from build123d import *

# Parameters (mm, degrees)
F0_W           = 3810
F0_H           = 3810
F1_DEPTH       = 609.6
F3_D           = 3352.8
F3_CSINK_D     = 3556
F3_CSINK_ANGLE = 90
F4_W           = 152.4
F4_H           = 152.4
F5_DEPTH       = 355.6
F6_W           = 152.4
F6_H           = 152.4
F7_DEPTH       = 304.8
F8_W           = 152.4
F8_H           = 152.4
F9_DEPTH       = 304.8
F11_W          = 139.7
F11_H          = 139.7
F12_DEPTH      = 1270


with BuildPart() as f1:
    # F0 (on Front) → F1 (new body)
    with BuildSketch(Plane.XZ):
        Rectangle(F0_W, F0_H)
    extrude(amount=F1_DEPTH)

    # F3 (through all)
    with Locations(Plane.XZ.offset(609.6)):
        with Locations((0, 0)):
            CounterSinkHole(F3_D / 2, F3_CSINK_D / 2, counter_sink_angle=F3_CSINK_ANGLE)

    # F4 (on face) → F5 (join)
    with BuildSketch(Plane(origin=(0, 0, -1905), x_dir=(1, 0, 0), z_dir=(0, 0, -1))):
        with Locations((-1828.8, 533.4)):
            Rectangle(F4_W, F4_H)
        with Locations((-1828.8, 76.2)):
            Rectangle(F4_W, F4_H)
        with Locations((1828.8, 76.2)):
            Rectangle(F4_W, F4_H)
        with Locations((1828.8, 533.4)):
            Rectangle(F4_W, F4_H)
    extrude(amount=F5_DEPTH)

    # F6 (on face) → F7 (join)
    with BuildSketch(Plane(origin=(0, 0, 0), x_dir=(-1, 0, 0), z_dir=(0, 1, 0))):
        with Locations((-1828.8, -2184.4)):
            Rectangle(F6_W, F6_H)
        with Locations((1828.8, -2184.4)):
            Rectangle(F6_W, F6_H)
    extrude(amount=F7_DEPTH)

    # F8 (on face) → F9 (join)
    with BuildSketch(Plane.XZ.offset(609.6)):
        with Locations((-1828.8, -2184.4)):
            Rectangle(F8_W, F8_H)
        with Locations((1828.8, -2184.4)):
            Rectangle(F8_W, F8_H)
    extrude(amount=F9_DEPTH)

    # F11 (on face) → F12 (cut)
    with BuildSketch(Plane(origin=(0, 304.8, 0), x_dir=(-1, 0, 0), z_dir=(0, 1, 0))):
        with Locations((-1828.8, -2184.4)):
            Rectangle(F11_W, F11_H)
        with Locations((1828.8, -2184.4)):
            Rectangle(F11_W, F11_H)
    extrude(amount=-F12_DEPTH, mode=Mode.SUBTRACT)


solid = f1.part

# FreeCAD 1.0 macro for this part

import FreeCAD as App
import Part
import Sketcher

V = App.Vector
Q = App.Units.Quantity


def add_polygon(sketch, points):
    """Adds a closed chain of lines whose ends are joined by coincident constraints."""
    first, n = sketch.GeometryCount, len(points)
    for a, b in zip(points, points[1:] + points[:1]):
        sketch.addGeometry(Part.LineSegment(App.Vector(*a, 0), App.Vector(*b, 0)), False)
    for i in range(n):
        sketch.addConstraint(Sketcher.Constraint("Coincident", first + i, 2, first + (i + 1) % n, 1))

doc = App.newDocument("Part")
params = doc.addObject("Spreadsheet::Sheet", "Params")
for row, (alias, value) in enumerate([
    ("sketch1_width", "150 in"),
    ("pad1_length", "24 in"),
    ("sketch2_diameter", "132 in"),
    ("hole_diameter", "132 in"),
    ("hole_csink_diameter", "140 in"),
    ("sketch3_width", "6 in"),
    ("pad2_length", "14 in"),
    ("sketch4_width", "6 in"),
    ("pad3_length", "12 in"),
    ("sketch5_width", "6 in"),
    ("pad4_length", "12 in"),
    ("sketch6_width", "5.5 in"),
    ("pocket1_length", "50 in"),
], start=1):
    params.set(f"A{row}", alias)
    params.set(f"B{row}", "=" + value)
    params.setAlias(f"B{row}", alias)

body = doc.addObject("PartDesign::Body", "Body")

sketch1 = body.newObject("Sketcher::SketchObject", "Sketch")
sketch1.AttachmentSupport = (doc.getObject("XZ_Plane"), [""])
sketch1.MapMode = "FlatFace"
add_polygon(sketch1, [(-1905, 1905), (-1905, -1905), (1905, -1905), (1905, 1905)])
sketch1.addConstraint([
    Sketcher.Constraint("Vertical", 0),
    Sketcher.Constraint("Horizontal", 1),
    Sketcher.Constraint("Vertical", 2),
    Sketcher.Constraint("Horizontal", 3),
    Sketcher.Constraint("Symmetric", 0, 2, 2, 2, -1, 1),
    Sketcher.Constraint("Equal", 3, 0),
    Sketcher.Constraint("DistanceX", 1, 1, 1, 2, Q("150 in")),
])
sketch1.setExpression("Constraints[10]", "Params.sketch1_width")
pad1 = body.newObject("PartDesign::Pad", "Pad")
pad1.Profile = sketch1
pad1.setExpression("Length", "Params.pad1_length")

sketch2 = body.newObject("Sketcher::SketchObject", "Sketch001")
sketch2.AttachmentSupport = (doc.getObject("XZ_Plane"), [""])
sketch2.MapMode = "FlatFace"
sketch2.AttachmentOffset = App.Placement(V(0, 0, 24 * 25.4), App.Rotation())
sketch2.addGeometry(Part.Circle(V(0, 0, 0), V(0, 0, 1), 1676), False)
sketch2.addConstraint([
    Sketcher.Constraint("Coincident", 0, 3, -1, 1),
    Sketcher.Constraint("Diameter", 0, Q("132 in")),
])
sketch2.setExpression("Constraints[1]", "Params.sketch2_diameter")
doc.recompute()
hole = body.newObject("PartDesign::Hole", "Hole")
hole.Profile = sketch2
hole.ThreadType = "None"
hole.setExpression("Diameter", "Params.hole_diameter")
hole.DepthType = "ThroughAll"
hole.HoleCutType = "Countersink"
hole.setExpression("HoleCutDiameter", "Params.hole_csink_diameter")
hole.HoleCutCountersinkAngle = 90

sketch3 = body.newObject("Sketcher::SketchObject", "Sketch002")
sketch3.AttachmentSupport = (doc.getObject("XY_Plane"), [""])
sketch3.MapMode = "FlatFace"
sketch3.AttachmentOffset = App.Placement(V(0, 0, -75 * 25.4), App.Rotation())
add_polygon(sketch3, [(-1905, -610), (-1905, -457), (-1753, -457), (-1753, -610)])
add_polygon(sketch3, [(-1905, -152), (-1905, 0), (-1753, 0), (-1753, -152)])
add_polygon(sketch3, [(1753, -152), (1753, 0), (1905, 0), (1905, -152)])
add_polygon(sketch3, [(1753, -610), (1753, -457), (1905, -457), (1905, -610)])
sketch3.addConstraint([
    Sketcher.Constraint("Vertical", 0),
    Sketcher.Constraint("Horizontal", 1),
    Sketcher.Constraint("Vertical", 2),
    Sketcher.Constraint("Horizontal", 3),
    Sketcher.Constraint("Vertical", 4),
    Sketcher.Constraint("Horizontal", 5),
    Sketcher.Constraint("Vertical", 6),
    Sketcher.Constraint("Horizontal", 7),
    Sketcher.Constraint("Vertical", 8),
    Sketcher.Constraint("Horizontal", 9),
    Sketcher.Constraint("Vertical", 10),
    Sketcher.Constraint("Horizontal", 11),
    Sketcher.Constraint("Vertical", 12),
    Sketcher.Constraint("Horizontal", 13),
    Sketcher.Constraint("Vertical", 14),
    Sketcher.Constraint("Horizontal", 15),
    Sketcher.Constraint("Symmetric", 5, 2, 8, 2, -1, 1),
    Sketcher.Constraint("Symmetric", 4, 2, 9, 2, -2),
    Sketcher.Constraint("Symmetric", 1, 2, 12, 2, -2),
    Sketcher.Constraint("Symmetric", 3, 2, 14, 2, -2),
    Sketcher.Constraint("Horizontal", 7, 2, 10, 2),
    Sketcher.Constraint("Vertical", 3, 2, 4, 2),
    Sketcher.Constraint("Vertical", 2, 2, 5, 2),
    Sketcher.Constraint("Equal", 15, 0),
    Sketcher.Constraint("Equal", 2, 4),
    Sketcher.Constraint("DistanceX", 1, 1, 1, 2, Q("6 in")),
    Sketcher.Constraint("DistanceX", 0, 2, -1, 1, Q("75 in")),
    Sketcher.Constraint("DistanceY", 0, 2, -1, 1, Q("18 in")),
])
sketch3.setExpression("Constraints[41]", "Params.sketch3_width")
pad2 = body.newObject("PartDesign::Pad", "Pad001")
pad2.Profile = sketch3
pad2.setExpression("Length", "Params.pad2_length")
pad2.Reversed = True

sketch4 = body.newObject("Sketcher::SketchObject", "Sketch003")
sketch4.AttachmentSupport = (doc.getObject("XZ_Plane"), [""])
sketch4.MapMode = "FlatFace"
add_polygon(sketch4, [(1905, -2108), (1905, -2261), (1753, -2261), (1753, -2108)])
add_polygon(sketch4, [(-1753, -2108), (-1753, -2261), (-1905, -2261), (-1905, -2108)])
sketch4.addConstraint([
    Sketcher.Constraint("Vertical", 0),
    Sketcher.Constraint("Horizontal", 1),
    Sketcher.Constraint("Vertical", 2),
    Sketcher.Constraint("Horizontal", 3),
    Sketcher.Constraint("Vertical", 4),
    Sketcher.Constraint("Horizontal", 5),
    Sketcher.Constraint("Vertical", 6),
    Sketcher.Constraint("Horizontal", 7),
    Sketcher.Constraint("Symmetric", 1, 2, 4, 2, -2),
    Sketcher.Constraint("Symmetric", 3, 2, 6, 2, -2),
    Sketcher.Constraint("Equal", 7, 0),
    Sketcher.Constraint("DistanceX", 1, 2, 1, 1, Q("6 in")),
    Sketcher.Constraint("DistanceX", -1, 1, 0, 2, Q("75 in")),
    Sketcher.Constraint("DistanceY", 0, 2, -1, 1, Q("89 in")),
])
sketch4.setExpression("Constraints[19]", "Params.sketch4_width")
pad3 = body.newObject("PartDesign::Pad", "Pad002")
pad3.Profile = sketch4
pad3.setExpression("Length", "Params.pad3_length")
pad3.Reversed = True

sketch5 = body.newObject("Sketcher::SketchObject", "Sketch004")
sketch5.AttachmentSupport = (doc.getObject("XZ_Plane"), [""])
sketch5.MapMode = "FlatFace"
sketch5.AttachmentOffset = App.Placement(V(0, 0, 24 * 25.4), App.Rotation())
add_polygon(sketch5, [(-1905, -2108), (-1905, -2261), (-1753, -2261), (-1753, -2108)])
add_polygon(sketch5, [(1753, -2108), (1753, -2261), (1905, -2261), (1905, -2108)])
sketch5.addConstraint([
    Sketcher.Constraint("Vertical", 0),
    Sketcher.Constraint("Horizontal", 1),
    Sketcher.Constraint("Vertical", 2),
    Sketcher.Constraint("Horizontal", 3),
    Sketcher.Constraint("Vertical", 4),
    Sketcher.Constraint("Horizontal", 5),
    Sketcher.Constraint("Vertical", 6),
    Sketcher.Constraint("Horizontal", 7),
    Sketcher.Constraint("Symmetric", 1, 2, 4, 2, -2),
    Sketcher.Constraint("Symmetric", 3, 2, 6, 2, -2),
    Sketcher.Constraint("Equal", 7, 0),
    Sketcher.Constraint("DistanceX", 1, 1, 1, 2, Q("6 in")),
    Sketcher.Constraint("DistanceX", 0, 2, -1, 1, Q("75 in")),
    Sketcher.Constraint("DistanceY", 0, 2, -1, 1, Q("89 in")),
])
sketch5.setExpression("Constraints[19]", "Params.sketch5_width")
pad4 = body.newObject("PartDesign::Pad", "Pad003")
pad4.Profile = sketch5
pad4.setExpression("Length", "Params.pad4_length")

sketch6 = body.newObject("Sketcher::SketchObject", "Sketch005")
sketch6.AttachmentSupport = (doc.getObject("XZ_Plane"), [""])
sketch6.MapMode = "FlatFace"
sketch6.AttachmentOffset = App.Placement(V(0, 0, -12 * 25.4), App.Rotation())
add_polygon(sketch6, [(1899, -2115), (1899, -2254), (1759, -2254), (1759, -2115)])
add_polygon(sketch6, [(-1759, -2115), (-1759, -2254), (-1899, -2254), (-1899, -2115)])
sketch6.addConstraint([
    Sketcher.Constraint("Vertical", 0),
    Sketcher.Constraint("Horizontal", 1),
    Sketcher.Constraint("Vertical", 2),
    Sketcher.Constraint("Horizontal", 3),
    Sketcher.Constraint("Vertical", 4),
    Sketcher.Constraint("Horizontal", 5),
    Sketcher.Constraint("Vertical", 6),
    Sketcher.Constraint("Horizontal", 7),
    Sketcher.Constraint("Symmetric", 1, 2, 4, 2, -2),
    Sketcher.Constraint("Symmetric", 3, 2, 6, 2, -2),
    Sketcher.Constraint("Equal", 7, 0),
    Sketcher.Constraint("DistanceX", 1, 2, 1, 1, Q("5.5 in")),
    Sketcher.Constraint("DistanceX", 4, 2, 0, 2, Q("144 in")),
    Sketcher.Constraint("DistanceY", 0, 2, -1, 1, Q("88.75 in")),
])
sketch6.setExpression("Constraints[19]", "Params.sketch6_width")
pocket1 = body.newObject("PartDesign::Pocket", "Pocket")
pocket1.Profile = sketch6
pocket1.setExpression("Length", "Params.pocket1_length")
pocket1.Reversed = True

doc.recompute()
